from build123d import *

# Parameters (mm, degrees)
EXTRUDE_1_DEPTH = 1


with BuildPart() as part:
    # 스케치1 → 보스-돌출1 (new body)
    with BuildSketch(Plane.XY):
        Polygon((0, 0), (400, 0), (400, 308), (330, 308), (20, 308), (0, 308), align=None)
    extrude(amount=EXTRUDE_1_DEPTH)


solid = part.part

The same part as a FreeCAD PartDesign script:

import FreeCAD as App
import Part
import Sketcher
from FreeCAD import Vector


def add_polygon(sketch, points):
    """Adds a closed chain of lines whose ends are joined by coincident constraints."""
    first, n = sketch.GeometryCount, len(points)
    for a, b in zip(points, points[1:] + points[:1]):
        sketch.addGeometry(Part.LineSegment(App.Vector(*a, 0), App.Vector(*b, 0)), False)
    for i in range(n):
        sketch.addConstraint(Sketcher.Constraint("Coincident", first + i, 2, first + (i + 1) % n, 1))

doc = App.newDocument("Part")
body = doc.addObject("PartDesign::Body", "Body")

sketch1 = body.newObject("Sketcher::SketchObject", "Sketch")
sketch1.AttachmentSupport = (doc.getObject("XY_Plane"), [""])
sketch1.MapMode = "FlatFace"
add_polygon(sketch1, [(0, 0), (400, 0), (400, 308), (0, 308)])
sketch1.addConstraint([
    Sketcher.Constraint("Horizontal", 0),
    Sketcher.Constraint("Vertical", 1),
    Sketcher.Constraint("Horizontal", 2),
    Sketcher.Constraint("Vertical", 3),
    Sketcher.Constraint("Coincident", 3, 2, -1, 1),
    Sketcher.Constraint("DistanceX", 0, 1, 0, 2, 400.0),
    Sketcher.Constraint("DistanceY", 1, 1, 1, 2, 308.0),
])
pad1 = body.newObject("PartDesign::Pad", "Pad")
pad1.Profile = sketch1
pad1.Length = 1

doc.recompute()
